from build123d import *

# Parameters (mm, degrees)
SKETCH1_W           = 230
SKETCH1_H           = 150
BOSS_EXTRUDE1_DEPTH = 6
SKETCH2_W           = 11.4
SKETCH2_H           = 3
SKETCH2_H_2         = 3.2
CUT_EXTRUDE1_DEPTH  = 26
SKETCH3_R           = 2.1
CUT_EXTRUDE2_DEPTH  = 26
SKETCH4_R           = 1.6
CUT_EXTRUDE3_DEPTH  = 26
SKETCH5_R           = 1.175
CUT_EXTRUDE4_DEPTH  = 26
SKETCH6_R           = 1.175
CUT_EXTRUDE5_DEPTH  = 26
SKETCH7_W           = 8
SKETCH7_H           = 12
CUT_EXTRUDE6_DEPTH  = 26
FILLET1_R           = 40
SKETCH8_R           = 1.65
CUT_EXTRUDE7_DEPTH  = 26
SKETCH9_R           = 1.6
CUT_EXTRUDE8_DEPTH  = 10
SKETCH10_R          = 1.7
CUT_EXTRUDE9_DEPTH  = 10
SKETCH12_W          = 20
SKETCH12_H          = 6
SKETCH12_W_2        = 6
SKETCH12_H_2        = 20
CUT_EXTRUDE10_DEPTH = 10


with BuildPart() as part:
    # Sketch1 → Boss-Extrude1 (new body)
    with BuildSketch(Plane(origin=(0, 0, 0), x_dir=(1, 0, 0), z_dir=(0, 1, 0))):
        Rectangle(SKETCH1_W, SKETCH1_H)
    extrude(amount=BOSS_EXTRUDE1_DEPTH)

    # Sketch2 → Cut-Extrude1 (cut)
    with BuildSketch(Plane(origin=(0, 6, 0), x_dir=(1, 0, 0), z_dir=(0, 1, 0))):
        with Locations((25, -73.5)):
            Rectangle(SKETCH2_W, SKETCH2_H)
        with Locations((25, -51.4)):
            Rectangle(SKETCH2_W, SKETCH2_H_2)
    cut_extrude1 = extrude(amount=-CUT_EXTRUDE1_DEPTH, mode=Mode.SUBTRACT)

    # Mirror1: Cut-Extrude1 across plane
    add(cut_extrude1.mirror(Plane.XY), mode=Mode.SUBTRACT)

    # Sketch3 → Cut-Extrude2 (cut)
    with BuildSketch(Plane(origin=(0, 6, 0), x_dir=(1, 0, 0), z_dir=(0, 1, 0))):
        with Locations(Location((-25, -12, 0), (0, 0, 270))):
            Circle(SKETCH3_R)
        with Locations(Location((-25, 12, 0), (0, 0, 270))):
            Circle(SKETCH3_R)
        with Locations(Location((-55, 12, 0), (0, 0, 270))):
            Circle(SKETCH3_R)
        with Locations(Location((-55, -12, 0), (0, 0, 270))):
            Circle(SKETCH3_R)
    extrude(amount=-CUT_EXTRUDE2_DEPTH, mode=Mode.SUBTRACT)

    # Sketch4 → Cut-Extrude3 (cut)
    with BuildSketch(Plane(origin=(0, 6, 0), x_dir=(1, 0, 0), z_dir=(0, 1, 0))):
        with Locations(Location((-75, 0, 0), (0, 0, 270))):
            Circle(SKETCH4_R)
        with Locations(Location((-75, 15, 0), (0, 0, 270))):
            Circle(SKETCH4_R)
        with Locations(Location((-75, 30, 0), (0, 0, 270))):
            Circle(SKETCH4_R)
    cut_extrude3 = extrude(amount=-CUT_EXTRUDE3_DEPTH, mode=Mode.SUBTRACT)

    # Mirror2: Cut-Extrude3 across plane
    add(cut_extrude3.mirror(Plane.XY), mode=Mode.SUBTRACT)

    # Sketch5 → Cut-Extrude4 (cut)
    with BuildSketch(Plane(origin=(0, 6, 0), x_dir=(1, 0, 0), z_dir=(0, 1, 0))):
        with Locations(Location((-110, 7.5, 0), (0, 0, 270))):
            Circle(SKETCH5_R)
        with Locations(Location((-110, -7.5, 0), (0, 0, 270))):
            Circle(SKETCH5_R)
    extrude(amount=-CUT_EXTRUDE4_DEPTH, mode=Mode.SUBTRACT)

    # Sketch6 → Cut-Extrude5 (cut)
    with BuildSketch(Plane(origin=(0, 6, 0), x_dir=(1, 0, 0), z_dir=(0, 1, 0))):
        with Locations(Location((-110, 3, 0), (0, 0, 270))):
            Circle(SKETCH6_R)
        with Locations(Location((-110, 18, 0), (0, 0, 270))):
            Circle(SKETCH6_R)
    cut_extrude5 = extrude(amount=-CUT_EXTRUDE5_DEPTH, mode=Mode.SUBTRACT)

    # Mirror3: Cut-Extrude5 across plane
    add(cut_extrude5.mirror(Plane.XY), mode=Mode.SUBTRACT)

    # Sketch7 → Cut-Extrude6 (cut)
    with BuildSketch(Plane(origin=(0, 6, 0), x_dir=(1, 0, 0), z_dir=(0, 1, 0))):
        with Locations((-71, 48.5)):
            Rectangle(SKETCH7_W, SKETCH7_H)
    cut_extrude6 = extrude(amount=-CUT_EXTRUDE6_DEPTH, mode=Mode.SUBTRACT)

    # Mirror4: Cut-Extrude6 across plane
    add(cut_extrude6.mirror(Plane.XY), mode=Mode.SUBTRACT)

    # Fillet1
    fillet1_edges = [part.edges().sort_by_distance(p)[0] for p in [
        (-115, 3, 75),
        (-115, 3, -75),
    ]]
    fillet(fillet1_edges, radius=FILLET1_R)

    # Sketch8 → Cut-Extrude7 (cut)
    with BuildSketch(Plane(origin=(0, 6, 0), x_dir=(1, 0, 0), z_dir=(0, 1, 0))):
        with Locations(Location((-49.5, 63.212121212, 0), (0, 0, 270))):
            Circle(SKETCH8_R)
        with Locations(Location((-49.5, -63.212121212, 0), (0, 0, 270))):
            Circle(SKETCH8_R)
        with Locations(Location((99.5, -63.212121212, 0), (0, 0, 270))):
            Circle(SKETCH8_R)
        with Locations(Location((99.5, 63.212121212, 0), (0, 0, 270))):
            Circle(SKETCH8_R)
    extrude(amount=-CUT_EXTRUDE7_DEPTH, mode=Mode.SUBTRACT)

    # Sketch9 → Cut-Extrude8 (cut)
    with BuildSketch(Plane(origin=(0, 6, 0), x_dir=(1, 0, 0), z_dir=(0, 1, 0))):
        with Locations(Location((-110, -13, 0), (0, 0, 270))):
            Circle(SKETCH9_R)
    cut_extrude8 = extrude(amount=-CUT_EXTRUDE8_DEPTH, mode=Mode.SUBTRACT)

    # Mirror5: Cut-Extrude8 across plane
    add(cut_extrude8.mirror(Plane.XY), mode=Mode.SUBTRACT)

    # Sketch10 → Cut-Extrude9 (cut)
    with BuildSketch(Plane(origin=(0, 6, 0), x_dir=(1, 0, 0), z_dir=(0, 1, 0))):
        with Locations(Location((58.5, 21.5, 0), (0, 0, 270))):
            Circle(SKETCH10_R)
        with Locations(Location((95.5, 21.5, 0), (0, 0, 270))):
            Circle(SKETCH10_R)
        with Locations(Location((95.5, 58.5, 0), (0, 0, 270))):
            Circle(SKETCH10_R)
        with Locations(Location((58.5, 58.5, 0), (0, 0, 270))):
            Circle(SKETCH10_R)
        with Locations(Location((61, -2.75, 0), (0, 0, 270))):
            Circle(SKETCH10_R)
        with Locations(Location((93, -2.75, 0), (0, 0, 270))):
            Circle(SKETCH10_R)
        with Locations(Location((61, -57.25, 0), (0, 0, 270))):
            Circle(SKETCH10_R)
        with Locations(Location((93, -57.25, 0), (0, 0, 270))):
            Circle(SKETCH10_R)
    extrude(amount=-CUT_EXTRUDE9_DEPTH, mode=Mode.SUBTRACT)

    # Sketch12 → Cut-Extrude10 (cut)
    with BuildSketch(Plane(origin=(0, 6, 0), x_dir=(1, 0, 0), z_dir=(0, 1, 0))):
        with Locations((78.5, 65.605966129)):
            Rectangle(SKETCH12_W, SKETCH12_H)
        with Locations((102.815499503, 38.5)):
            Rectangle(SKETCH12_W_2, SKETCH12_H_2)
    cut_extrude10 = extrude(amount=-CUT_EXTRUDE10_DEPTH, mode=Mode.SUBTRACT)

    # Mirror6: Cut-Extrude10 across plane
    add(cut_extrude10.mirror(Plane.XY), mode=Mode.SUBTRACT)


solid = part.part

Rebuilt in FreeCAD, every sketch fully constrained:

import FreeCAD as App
import Part
import Sketcher


def edges_at(feature, points):
    """Names of the edges that pass closest to the given points."""
    edges = feature.Shape.Edges
    near = lambda p: min(range(len(edges)), key=lambda i: edges[i].distToShape(Part.Vertex(*p))[0])
    return sorted({f"Edge{near(p) + 1}" for p in points})

doc = App.newDocument("Part")
params = doc.addObject("Spreadsheet::Sheet", "Params")
for row, (alias, value) in enumerate([
    ("sketch1_width", "230 mm"),
    ("sketch1_height", "150 mm"),
    ("pad1_length", "6 mm"),
    ("sketch2_height", "3 mm"),
    ("sketch2_width", "11.4 mm"),
    ("sketch2_height2", "3.2 mm"),
    ("pocket1_length", "26 mm"),
    ("sketch3_diameter", "4.2 mm"),
    ("pocket2_length", "26 mm"),
    ("sketch4_diameter", "3.2 mm"),
    ("pocket3_length", "26 mm"),
    ("sketch5_diameter", "2.35 mm"),
    ("pocket4_length", "26 mm"),
    ("sketch6_diameter", "2.35 mm"),
    ("pocket5_length", "26 mm"),
    ("sketch7_width", "8 mm"),
    ("sketch7_height", "12 mm"),
    ("pocket6_length", "26 mm"),
    ("fillet_radius", "40 mm"),
    ("sketch8_diameter", "3.3 mm"),
    ("pocket7_length", "26 mm"),
    ("sketch9_diameter", "3.2 mm"),
    ("pocket8_length", "10 mm"),
    ("sketch10_diameter", "3.4 mm"),
    ("pocket9_length", "10 mm"),
    ("sketch11_width", "20 mm"),
    ("sketch11_width2", "6 mm"),
    ("pocket10_length", "10 mm"),
], start=1):
    params.set(f"A{row}", alias)
    params.set(f"B{row}", "=" + value)
    params.setAlias(f"B{row}", alias)

body = doc.addObject("PartDesign::Body", "Body")

# Sketch on XZ plane
sketch1 = body.newObject("Sketcher::SketchObject", "Sketch")
sketch1.AttachmentSupport = (doc.getObject("XZ_Plane"), [""])
sketch1.MapMode = "FlatFace"
sketch1.addGeometry([
    Part.LineSegment(App.Vector(-115, -75, 0), App.Vector(-115, 75, 0)),
    Part.LineSegment(App.Vector(-115, 75, 0), App.Vector(115, 75, 0)),
    Part.LineSegment(App.Vector(115, 75, 0), App.Vector(115, -75, 0)),
    Part.LineSegment(App.Vector(115, -75, 0), App.Vector(-115, -75, 0)),
], False)
sketch1.addConstraint([
    Sketcher.Constraint("Coincident", 0, 2, 1, 1),
    Sketcher.Constraint("Coincident", 1, 2, 2, 1),
    Sketcher.Constraint("Coincident", 2, 2, 3, 1),
    Sketcher.Constraint("Coincident", 3, 2, 0, 1),
    Sketcher.Constraint("Vertical", 0),
    Sketcher.Constraint("Horizontal", 1),
    Sketcher.Constraint("Vertical", 2),
    Sketcher.Constraint("Horizontal", 3),
    Sketcher.Constraint("Symmetric", 0, 2, 2, 2, -1, 1),
    Sketcher.Constraint("DistanceX", 1, 1, 1, 2, 230.0),
    Sketcher.Constraint("DistanceY", 0, 1, 0, 2, 150.0),
])
sketch1.setExpression("Constraints[9]", "Params.sketch1_width")
sketch1.setExpression("Constraints[10]", "Params.sketch1_height")
pad1 = body.newObject("PartDesign::Pad", "Pad")
pad1.Profile = sketch1
pad1.setExpression("Length", "Params.pad1_length")
pad1.Reversed = True

# Sketch on XZ plane
sketch2 = body.newObject("Sketcher::SketchObject", "Sketch001")
sketch2.AttachmentSupport = (doc.getObject("XZ_Plane"), [""])
sketch2.MapMode = "FlatFace"
sketch2.AttachmentOffset = App.Placement(App.Vector(0, 0, -6), App.Rotation())
sketch2.addGeometry([
    Part.LineSegment(App.Vector(19.3, 72, 0), App.Vector(19.3, 75, 0)),  # 0
    Part.LineSegment(App.Vector(19.3, 75, 0), App.Vector(30.7, 75, 0)),  # 1
    Part.LineSegment(App.Vector(30.7, 75, 0), App.Vector(30.7, 72, 0)),  # 2
    Part.LineSegment(App.Vector(30.7, 72, 0), App.Vector(19.3, 72, 0)),  # 3
    Part.LineSegment(App.Vector(19.3, 49.8, 0), App.Vector(19.3, 53, 0)),  # 4
    Part.LineSegment(App.Vector(19.3, 53, 0), App.Vector(30.7, 53, 0)),  # 5
    Part.LineSegment(App.Vector(30.7, 53, 0), App.Vector(30.7, 49.8, 0)),  # 6
    Part.LineSegment(App.Vector(30.7, 49.8, 0), App.Vector(19.3, 49.8, 0)),  # 7
], False)
sketch2.addConstraint([
    Sketcher.Constraint("Coincident", 0, 2, 1, 1),
    Sketcher.Constraint("Coincident", 1, 2, 2, 1),
    Sketcher.Constraint("Coincident", 2, 2, 3, 1),
    Sketcher.Constraint("Coincident", 3, 2, 0, 1),
    Sketcher.Constraint("Coincident", 4, 2, 5, 1),
    Sketcher.Constraint("Coincident", 5, 2, 6, 1),
    Sketcher.Constraint("Coincident", 6, 2, 7, 1),
    Sketcher.Constraint("Coincident", 7, 2, 4, 1),
    Sketcher.Constraint("Vertical", 0),
    Sketcher.Constraint("Horizontal", 1),
    Sketcher.Constraint("Vertical", 2),
    Sketcher.Constraint("Horizontal", 3),
    Sketcher.Constraint("Vertical", 4),
    Sketcher.Constraint("Horizontal", 5),
    Sketcher.Constraint("Vertical", 6),
    Sketcher.Constraint("Horizontal", 7),
    Sketcher.Constraint("Vertical", 3, 2, 4, 2),
    Sketcher.Constraint("Vertical", 2, 2, 5, 2),
    Sketcher.Constraint("DistanceY", 0, 1, 0, 2, 3.0),
    Sketcher.Constraint("DistanceX", 1, 1, 1, 2, 11.4),
    Sketcher.Constraint("DistanceY", 4, 1, 4, 2, 3.2),
    Sketcher.Constraint("DistanceY", -1, 1, 0, 2, 75.0),
    Sketcher.Constraint("DistanceY", -1, 1, 4, 2, 53.0),
    Sketcher.Constraint("DistanceX", -1, 1, 0, 2, 19.3),
])
sketch2.setExpression("Constraints[18]", "Params.sketch2_height")
sketch2.setExpression("Constraints[19]", "Params.sketch2_width")
sketch2.setExpression("Constraints[20]", "Params.sketch2_height2")
pocket1 = body.newObject("PartDesign::Pocket", "Pocket")
pocket1.Profile = sketch2
pocket1.setExpression("Length", "Params.pocket1_length")
pocket1.Reversed = True
doc.recompute()

mirrored = body.newObject("PartDesign::Mirrored", "Mirrored")
mirrored.Originals = [pocket1]
mirrored.MirrorPlane = (doc.getObject("XY_Plane"), [""])
body.Tip = mirrored

# Sketch on XZ plane
sketch3 = body.newObject("Sketcher::SketchObject", "Sketch002")
sketch3.AttachmentSupport = (doc.getObject("XZ_Plane"), [""])
sketch3.MapMode = "FlatFace"
sketch3.AttachmentOffset = App.Placement(App.Vector(0, 0, -6), App.Rotation())
sketch3.addGeometry([
    Part.Circle(App.Vector(-25, 12, 0), App.Vector(0, 0, 1), 2.1),
    Part.Circle(App.Vector(-25, -12, 0), App.Vector(0, 0, 1), 2.1),
    Part.Circle(App.Vector(-55, -12, 0), App.Vector(0, 0, 1), 2.1),
    Part.Circle(App.Vector(-55, 12, 0), App.Vector(0, 0, 1), 2.1),
], False)
sketch3.addConstraint([
    Sketcher.Constraint("Equal", 0, 1),
    Sketcher.Constraint("Equal", 1, 2),
    Sketcher.Constraint("Equal", 2, 3),
    Sketcher.Constraint("Symmetric", 0, 3, 1, 3, -1),
    Sketcher.Constraint("Symmetric", 2, 3, 3, 3, -1),
    Sketcher.Constraint("Horizontal", 1, 3, 2, 3),
    Sketcher.Constraint("Diameter", 0, 4.2),
    Sketcher.Constraint("DistanceX", 0, 3, -1, 1, 25.0),
    Sketcher.Constraint("DistanceY", -1, 1, 0, 3, 12.0),
    Sketcher.Constraint("DistanceX", 2, 3, -1, 1, 55.0),
])
sketch3.setExpression("Constraints[6]", "Params.sketch3_diameter")
pocket2 = body.newObject("PartDesign::Pocket", "Pocket001")
pocket2.Profile = sketch3
pocket2.setExpression("Length", "Params.pocket2_length")
pocket2.Reversed = True

# Sketch on XZ plane
sketch4 = body.newObject("Sketcher::SketchObject", "Sketch003")
sketch4.AttachmentSupport = (doc.getObject("XZ_Plane"), [""])
sketch4.MapMode = "FlatFace"
sketch4.AttachmentOffset = App.Placement(App.Vector(0, 0, -6), App.Rotation())
sketch4.addGeometry([
    Part.Circle(App.Vector(-75, 0, 0), App.Vector(0, 0, 1), 1.6),
    Part.Circle(App.Vector(-75, -15, 0), App.Vector(0, 0, 1), 1.6),
    Part.Circle(App.Vector(-75, -30, 0), App.Vector(0, 0, 1), 1.6),
], False)
sketch4.addConstraint([
    Sketcher.Constraint("Equal", 0, 1),
    Sketcher.Constraint("Equal", 1, 2),
    Sketcher.Constraint("PointOnObject", 0, 3, -1),
    Sketcher.Constraint("Vertical", 0, 3, 1, 3),
    Sketcher.Constraint("Vertical", 1, 3, 2, 3),
    Sketcher.Constraint("Diameter", 0, 3.2),
    Sketcher.Constraint("DistanceX", 0, 3, -1, 1, 75.0),
    Sketcher.Constraint("DistanceY", 1, 3, -1, 1, 15.0),
    Sketcher.Constraint("DistanceY", 2, 3, -1, 1, 30.0),
])
sketch4.setExpression("Constraints[5]", "Params.sketch4_diameter")
pocket3 = body.newObject("PartDesign::Pocket", "Pocket002")
pocket3.Profile = sketch4
pocket3.setExpression("Length", "Params.pocket3_length")
pocket3.Reversed = True
doc.recompute()

mirrored2 = body.newObject("PartDesign::Mirrored", "Mirrored001")
mirrored2.Originals = [pocket3]
mirrored2.MirrorPlane = (doc.getObject("XY_Plane"), [""])
body.Tip = mirrored2

# Sketch on XZ plane
sketch5 = body.newObject("Sketcher::SketchObject", "Sketch004")
sketch5.AttachmentSupport = (doc.getObject("XZ_Plane"), [""])
sketch5.MapMode = "FlatFace"
sketch5.AttachmentOffset = App.Placement(App.Vector(0, 0, -6), App.Rotation())
sketch5.addGeometry([
    Part.Circle(App.Vector(-110, -7.5, 0), App.Vector(0, 0, 1), 1.2),
    Part.Circle(App.Vector(-110, 7.5, 0), App.Vector(0, 0, 1), 1.2),
], False)
sketch5.addConstraint([
    Sketcher.Constraint("Equal", 0, 1),
    Sketcher.Constraint("Symmetric", 0, 3, 1, 3, -1),
    Sketcher.Constraint("Diameter", 0, 2.35),
    Sketcher.Constraint("DistanceX", 0, 3, -1, 1, 110.0),
    Sketcher.Constraint("DistanceY", 0, 3, 1, 3, 15.0),
])
sketch5.setExpression("Constraints[2]", "Params.sketch5_diameter")
pocket4 = body.newObject("PartDesign::Pocket", "Pocket003")
pocket4.Profile = sketch5
pocket4.setExpression("Length", "Params.pocket4_length")
pocket4.Reversed = True

# Sketch on XZ plane
sketch6 = body.newObject("Sketcher::SketchObject", "Sketch005")
sketch6.AttachmentSupport = (doc.getObject("XZ_Plane"), [""])
sketch6.MapMode = "FlatFace"
sketch6.AttachmentOffset = App.Placement(App.Vector(0, 0, -6), App.Rotation())
sketch6.addGeometry([
    Part.Circle(App.Vector(-110, -3, 0), App.Vector(0, 0, 1), 1.2),
    Part.Circle(App.Vector(-110, -18, 0), App.Vector(0, 0, 1), 1.2),
], False)
sketch6.addConstraint([
    Sketcher.Constraint("Equal", 0, 1),
    Sketcher.Constraint("Vertical", 0, 3, 1, 3),
    Sketcher.Constraint("Diameter", 0, 2.35),
    Sketcher.Constraint("DistanceX", 0, 3, -1, 1, 110.0),
    Sketcher.Constraint("DistanceY", 0, 3, -1, 1, 3.0),
    Sketcher.Constraint("DistanceY", 1, 3, -1, 1, 18.0),
])
sketch6.setExpression("Constraints[2]", "Params.sketch6_diameter")
pocket5 = body.newObject("PartDesign::Pocket", "Pocket004")
pocket5.Profile = sketch6
pocket5.setExpression("Length", "Params.pocket5_length")
pocket5.Reversed = True
doc.recompute()

mirrored3 = body.newObject("PartDesign::Mirrored", "Mirrored002")
mirrored3.Originals = [pocket5]
mirrored3.MirrorPlane = (doc.getObject("XY_Plane"), [""])
body.Tip = mirrored3

# Sketch on XZ plane
sketch7 = body.newObject("Sketcher::SketchObject", "Sketch006")
sketch7.AttachmentSupport = (doc.getObject("XZ_Plane"), [""])
sketch7.MapMode = "FlatFace"
sketch7.AttachmentOffset = App.Placement(App.Vector(0, 0, -6), App.Rotation())
sketch7.addGeometry([
    Part.LineSegment(App.Vector(-75, -54, 0), App.Vector(-75, -42, 0)),
    Part.LineSegment(App.Vector(-75, -42, 0), App.Vector(-67, -42, 0)),
    Part.LineSegment(App.Vector(-67, -42, 0), App.Vector(-67, -54, 0)),
    Part.LineSegment(App.Vector(-67, -54, 0), App.Vector(-75, -54, 0)),
], False)
sketch7.addConstraint([
    Sketcher.Constraint("Coincident", 0, 2, 1, 1),
    Sketcher.Constraint("Coincident", 1, 2, 2, 1),
    Sketcher.Constraint("Coincident", 2, 2, 3, 1),
    Sketcher.Constraint("Coincident", 3, 2, 0, 1),
    Sketcher.Constraint("Vertical", 0),
    Sketcher.Constraint("Horizontal", 1),
    Sketcher.Constraint("Vertical", 2),
    Sketcher.Constraint("Horizontal", 3),
    Sketcher.Constraint("DistanceX", 1, 1, 1, 2, 8.0),
    Sketcher.Constraint("DistanceY", 0, 1, 0, 2, 12.0),
    Sketcher.Constraint("DistanceX", 0, 2, -1, 1, 75.0),
    Sketcher.Constraint("DistanceY", 0, 2, -1, 1, 42.5),
])
sketch7.setExpression("Constraints[8]", "Params.sketch7_width")
sketch7.setExpression("Constraints[9]", "Params.sketch7_height")
pocket6 = body.newObject("PartDesign::Pocket", "Pocket005")
pocket6.Profile = sketch7
pocket6.setExpression("Length", "Params.pocket6_length")
pocket6.Reversed = True
doc.recompute()

mirrored4 = body.newObject("PartDesign::Mirrored", "Mirrored003")
mirrored4.Originals = [pocket6]
mirrored4.MirrorPlane = (doc.getObject("XY_Plane"), [""])
body.Tip = mirrored4
doc.recompute()

fillet = body.newObject("PartDesign::Fillet", "Fillet")
fillet.Base = (mirrored4, edges_at(mirrored4, [(-115, 3, 75), (-115, 3, -75)]))
fillet.setExpression("Radius", "Params.fillet_radius")

# Sketch on XZ plane
sketch8 = body.newObject("Sketcher::SketchObject", "Sketch007")
sketch8.AttachmentSupport = (doc.getObject("XZ_Plane"), [""])
sketch8.MapMode = "FlatFace"
sketch8.AttachmentOffset = App.Placement(App.Vector(0, 0, -6), App.Rotation())
sketch8.addGeometry([
    Part.Circle(App.Vector(-49.5, -63.2, 0), App.Vector(0, 0, 1), 1.6),
    Part.Circle(App.Vector(-49.5, 63.2, 0), App.Vector(0, 0, 1), 1.6),
    Part.Circle(App.Vector(99.5, 63.2, 0), App.Vector(0, 0, 1), 1.6),
    Part.Circle(App.Vector(99.5, -63.2, 0), App.Vector(0, 0, 1), 1.6),
], False)
sketch8.addConstraint([
    Sketcher.Constraint("Equal", 0, 1),
    Sketcher.Constraint("Equal", 1, 2),
    Sketcher.Constraint("Equal", 2, 3),
    Sketcher.Constraint("Symmetric", 0, 3, 1, 3, -1),
    Sketcher.Constraint("Symmetric", 2, 3, 3, 3, -1),
    Sketcher.Constraint("Horizontal", 1, 3, 2, 3),
    Sketcher.Constraint("Diameter", 0, 3.3),
    Sketcher.Constraint("DistanceX", 1, 3, 2, 3, 149.0),
    Sketcher.Constraint("DistanceX", 0, 3, -1, 1, 49.5),
    Sketcher.Constraint("DistanceY", 0, 3, -1, 1, 63.212121),
])
sketch8.setExpression("Constraints[6]", "Params.sketch8_diameter")
pocket7 = body.newObject("PartDesign::Pocket", "Pocket006")
pocket7.Profile = sketch8
pocket7.setExpression("Length", "Params.pocket7_length")
pocket7.Reversed = True

# Sketch on XZ plane
sketch9 = body.newObject("Sketcher::SketchObject", "Sketch008")
sketch9.AttachmentSupport = (doc.getObject("XZ_Plane"), [""])
sketch9.MapMode = "FlatFace"
sketch9.AttachmentOffset = App.Placement(App.Vector(0, 0, -6), App.Rotation())
sketch9.addGeometry(Part.Circle(App.Vector(-110, 13, 0), App.Vector(0, 0, 1), 1.6), False)
sketch9.addConstraint([
    Sketcher.Constraint("Diameter", 0, 3.2),
    Sketcher.Constraint("DistanceX", 0, 3, -1, 1, 110.0),
    Sketcher.Constraint("DistanceY", -1, 1, 0, 3, 13.0),
])
sketch9.setExpression("Constraints[0]", "Params.sketch9_diameter")
pocket8 = body.newObject("PartDesign::Pocket", "Pocket007")
pocket8.Profile = sketch9
pocket8.setExpression("Length", "Params.pocket8_length")
pocket8.Reversed = True
doc.recompute()

mirrored5 = body.newObject("PartDesign::Mirrored", "Mirrored004")
mirrored5.Originals = [pocket8]
mirrored5.MirrorPlane = (doc.getObject("XY_Plane"), [""])
body.Tip = mirrored5

# Sketch on XZ plane
sketch10 = body.newObject("Sketcher::SketchObject", "Sketch009")
sketch10.AttachmentSupport = (doc.getObject("XZ_Plane"), [""])
sketch10.MapMode = "FlatFace"
sketch10.AttachmentOffset = App.Placement(App.Vector(0, 0, -6), App.Rotation())
sketch10.addGeometry([
    Part.Circle(App.Vector(58.5, -21.5, 0), App.Vector(0, 0, 1), 1.7),  # 0
    Part.Circle(App.Vector(95.5, -21.5, 0), App.Vector(0, 0, 1), 1.7),  # 1
    Part.Circle(App.Vector(95.5, -58.5, 0), App.Vector(0, 0, 1), 1.7),  # 2
    Part.Circle(App.Vector(58.5, -58.5, 0), App.Vector(0, 0, 1), 1.7),  # 3
    Part.Circle(App.Vector(61, 2.8, 0), App.Vector(0, 0, 1), 1.7),  # 4
    Part.Circle(App.Vector(93, 2.8, 0), App.Vector(0, 0, 1), 1.7),  # 5
    Part.Circle(App.Vector(61, 57.2, 0), App.Vector(0, 0, 1), 1.7),  # 6
    Part.Circle(App.Vector(93, 57.2, 0), App.Vector(0, 0, 1), 1.7),  # 7
], False)
sketch10.addConstraint([
    Sketcher.Constraint("Equal", 0, 1),
    Sketcher.Constraint("Equal", 1, 2),
    Sketcher.Constraint("Equal", 2, 3),
    Sketcher.Constraint("Equal", 3, 4),
    Sketcher.Constraint("Equal", 4, 5),
    Sketcher.Constraint("Equal", 5, 6),
    Sketcher.Constraint("Equal", 6, 7),
    Sketcher.Constraint("Horizontal", 0, 3, 1, 3),
    Sketcher.Constraint("Horizontal", 2, 3, 3, 3),
    Sketcher.Constraint("Horizontal", 4, 3, 5, 3),
    Sketcher.Constraint("Horizontal", 6, 3, 7, 3),
    Sketcher.Constraint("Vertical", 1, 3, 2, 3),
    Sketcher.Constraint("Vertical", 0, 3, 3, 3),
    Sketcher.Constraint("Vertical", 4, 3, 6, 3),
    Sketcher.Constraint("Vertical", 5, 3, 7, 3),
    Sketcher.Constraint("Diameter", 0, 3.4),
    Sketcher.Constraint("DistanceX", -1, 1, 4, 3, 61.0),
    Sketcher.Constraint("DistanceX", -1, 1, 5, 3, 93.0),
    Sketcher.Constraint("DistanceX", 0, 3, 1, 3, 37.0),
    Sketcher.Constraint("DistanceY", 2, 3, 1, 3, 37.0),
    Sketcher.Constraint("DistanceX", -1, 1, 0, 3, 58.5),
    Sketcher.Constraint("DistanceY", 0, 3, -1, 1, 21.5),
    Sketcher.Constraint("DistanceY", 4, 3, 6, 3, 54.5),
    Sketcher.Constraint("DistanceY", -1, 1, 4, 3, 2.75),
])
sketch10.setExpression("Constraints[15]", "Params.sketch10_diameter")
pocket9 = body.newObject("PartDesign::Pocket", "Pocket008")
pocket9.Profile = sketch10
pocket9.setExpression("Length", "Params.pocket9_length")
pocket9.Reversed = True

# Sketch on XZ plane
sketch11 = body.newObject("Sketcher::SketchObject", "Sketch010")
sketch11.AttachmentSupport = (doc.getObject("XZ_Plane"), [""])
sketch11.MapMode = "FlatFace"
sketch11.AttachmentOffset = App.Placement(App.Vector(0, 0, -6), App.Rotation())
sketch11.addGeometry([
    Part.LineSegment(App.Vector(68, -69, 0), App.Vector(68, -63, 0)),  # 0
    Part.LineSegment(App.Vector(68, -63, 0), App.Vector(88, -63, 0)),  # 1
    Part.LineSegment(App.Vector(88, -63, 0), App.Vector(88, -69, 0)),  # 2
    Part.LineSegment(App.Vector(88, -69, 0), App.Vector(68, -69, 0)),  # 3
    Part.LineSegment(App.Vector(100, -48, 0), App.Vector(100, -28, 0)),  # 4
    Part.LineSegment(App.Vector(100, -28, 0), App.Vector(106, -28, 0)),  # 5
    Part.LineSegment(App.Vector(106, -28, 0), App.Vector(106, -48, 0)),  # 6
    Part.LineSegment(App.Vector(106, -48, 0), App.Vector(100, -48, 0)),  # 7
], False)
sketch11.addConstraint([
    Sketcher.Constraint("Coincident", 0, 2, 1, 1),
    Sketcher.Constraint("Coincident", 1, 2, 2, 1),
    Sketcher.Constraint("Coincident", 2, 2, 3, 1),
    Sketcher.Constraint("Coincident", 3, 2, 0, 1),
    Sketcher.Constraint("Coincident", 4, 2, 5, 1),
    Sketcher.Constraint("Coincident", 5, 2, 6, 1),
    Sketcher.Constraint("Coincident", 6, 2, 7, 1),
    Sketcher.Constraint("Coincident", 7, 2, 4, 1),
    Sketcher.Constraint("Vertical", 0),
    Sketcher.Constraint("Horizontal", 1),
    Sketcher.Constraint("Vertical", 2),
    Sketcher.Constraint("Horizontal", 3),
    Sketcher.Constraint("Vertical", 4),
    Sketcher.Constraint("Horizontal", 5),
    Sketcher.Constraint("Vertical", 6),
    Sketcher.Constraint("Horizontal", 7),
    Sketcher.Constraint("Equal", 7, 0),
    Sketcher.Constraint("Equal", 3, 4),
    Sketcher.Constraint("DistanceX", 1, 1, 1, 2, 20.0),
    Sketcher.Constraint("DistanceX", 5, 1, 5, 2, 6.0),
    Sketcher.Constraint("DistanceX", -1, 1, 0, 2, 68.5),
    Sketcher.Constraint("DistanceY", 4, 2, -1, 1, 28.5),
    Sketcher.Constraint("DistanceX", -1, 1, 4, 2, 99.8155),
    Sketcher.Constraint("DistanceY", 0, 2, -1, 1, 62.605966),
])
sketch11.setExpression("Constraints[18]", "Params.sketch11_width")
sketch11.setExpression("Constraints[19]", "Params.sketch11_width2")
pocket10 = body.newObject("PartDesign::Pocket", "Pocket009")
pocket10.Profile = sketch11
pocket10.setExpression("Length", "Params.pocket10_length")
pocket10.Reversed = True
doc.recompute()

mirrored6 = body.newObject("PartDesign::Mirrored", "Mirrored005")
mirrored6.Originals = [pocket10]
mirrored6.MirrorPlane = (doc.getObject("XY_Plane"), [""])
body.Tip = mirrored6

doc.recompute()
